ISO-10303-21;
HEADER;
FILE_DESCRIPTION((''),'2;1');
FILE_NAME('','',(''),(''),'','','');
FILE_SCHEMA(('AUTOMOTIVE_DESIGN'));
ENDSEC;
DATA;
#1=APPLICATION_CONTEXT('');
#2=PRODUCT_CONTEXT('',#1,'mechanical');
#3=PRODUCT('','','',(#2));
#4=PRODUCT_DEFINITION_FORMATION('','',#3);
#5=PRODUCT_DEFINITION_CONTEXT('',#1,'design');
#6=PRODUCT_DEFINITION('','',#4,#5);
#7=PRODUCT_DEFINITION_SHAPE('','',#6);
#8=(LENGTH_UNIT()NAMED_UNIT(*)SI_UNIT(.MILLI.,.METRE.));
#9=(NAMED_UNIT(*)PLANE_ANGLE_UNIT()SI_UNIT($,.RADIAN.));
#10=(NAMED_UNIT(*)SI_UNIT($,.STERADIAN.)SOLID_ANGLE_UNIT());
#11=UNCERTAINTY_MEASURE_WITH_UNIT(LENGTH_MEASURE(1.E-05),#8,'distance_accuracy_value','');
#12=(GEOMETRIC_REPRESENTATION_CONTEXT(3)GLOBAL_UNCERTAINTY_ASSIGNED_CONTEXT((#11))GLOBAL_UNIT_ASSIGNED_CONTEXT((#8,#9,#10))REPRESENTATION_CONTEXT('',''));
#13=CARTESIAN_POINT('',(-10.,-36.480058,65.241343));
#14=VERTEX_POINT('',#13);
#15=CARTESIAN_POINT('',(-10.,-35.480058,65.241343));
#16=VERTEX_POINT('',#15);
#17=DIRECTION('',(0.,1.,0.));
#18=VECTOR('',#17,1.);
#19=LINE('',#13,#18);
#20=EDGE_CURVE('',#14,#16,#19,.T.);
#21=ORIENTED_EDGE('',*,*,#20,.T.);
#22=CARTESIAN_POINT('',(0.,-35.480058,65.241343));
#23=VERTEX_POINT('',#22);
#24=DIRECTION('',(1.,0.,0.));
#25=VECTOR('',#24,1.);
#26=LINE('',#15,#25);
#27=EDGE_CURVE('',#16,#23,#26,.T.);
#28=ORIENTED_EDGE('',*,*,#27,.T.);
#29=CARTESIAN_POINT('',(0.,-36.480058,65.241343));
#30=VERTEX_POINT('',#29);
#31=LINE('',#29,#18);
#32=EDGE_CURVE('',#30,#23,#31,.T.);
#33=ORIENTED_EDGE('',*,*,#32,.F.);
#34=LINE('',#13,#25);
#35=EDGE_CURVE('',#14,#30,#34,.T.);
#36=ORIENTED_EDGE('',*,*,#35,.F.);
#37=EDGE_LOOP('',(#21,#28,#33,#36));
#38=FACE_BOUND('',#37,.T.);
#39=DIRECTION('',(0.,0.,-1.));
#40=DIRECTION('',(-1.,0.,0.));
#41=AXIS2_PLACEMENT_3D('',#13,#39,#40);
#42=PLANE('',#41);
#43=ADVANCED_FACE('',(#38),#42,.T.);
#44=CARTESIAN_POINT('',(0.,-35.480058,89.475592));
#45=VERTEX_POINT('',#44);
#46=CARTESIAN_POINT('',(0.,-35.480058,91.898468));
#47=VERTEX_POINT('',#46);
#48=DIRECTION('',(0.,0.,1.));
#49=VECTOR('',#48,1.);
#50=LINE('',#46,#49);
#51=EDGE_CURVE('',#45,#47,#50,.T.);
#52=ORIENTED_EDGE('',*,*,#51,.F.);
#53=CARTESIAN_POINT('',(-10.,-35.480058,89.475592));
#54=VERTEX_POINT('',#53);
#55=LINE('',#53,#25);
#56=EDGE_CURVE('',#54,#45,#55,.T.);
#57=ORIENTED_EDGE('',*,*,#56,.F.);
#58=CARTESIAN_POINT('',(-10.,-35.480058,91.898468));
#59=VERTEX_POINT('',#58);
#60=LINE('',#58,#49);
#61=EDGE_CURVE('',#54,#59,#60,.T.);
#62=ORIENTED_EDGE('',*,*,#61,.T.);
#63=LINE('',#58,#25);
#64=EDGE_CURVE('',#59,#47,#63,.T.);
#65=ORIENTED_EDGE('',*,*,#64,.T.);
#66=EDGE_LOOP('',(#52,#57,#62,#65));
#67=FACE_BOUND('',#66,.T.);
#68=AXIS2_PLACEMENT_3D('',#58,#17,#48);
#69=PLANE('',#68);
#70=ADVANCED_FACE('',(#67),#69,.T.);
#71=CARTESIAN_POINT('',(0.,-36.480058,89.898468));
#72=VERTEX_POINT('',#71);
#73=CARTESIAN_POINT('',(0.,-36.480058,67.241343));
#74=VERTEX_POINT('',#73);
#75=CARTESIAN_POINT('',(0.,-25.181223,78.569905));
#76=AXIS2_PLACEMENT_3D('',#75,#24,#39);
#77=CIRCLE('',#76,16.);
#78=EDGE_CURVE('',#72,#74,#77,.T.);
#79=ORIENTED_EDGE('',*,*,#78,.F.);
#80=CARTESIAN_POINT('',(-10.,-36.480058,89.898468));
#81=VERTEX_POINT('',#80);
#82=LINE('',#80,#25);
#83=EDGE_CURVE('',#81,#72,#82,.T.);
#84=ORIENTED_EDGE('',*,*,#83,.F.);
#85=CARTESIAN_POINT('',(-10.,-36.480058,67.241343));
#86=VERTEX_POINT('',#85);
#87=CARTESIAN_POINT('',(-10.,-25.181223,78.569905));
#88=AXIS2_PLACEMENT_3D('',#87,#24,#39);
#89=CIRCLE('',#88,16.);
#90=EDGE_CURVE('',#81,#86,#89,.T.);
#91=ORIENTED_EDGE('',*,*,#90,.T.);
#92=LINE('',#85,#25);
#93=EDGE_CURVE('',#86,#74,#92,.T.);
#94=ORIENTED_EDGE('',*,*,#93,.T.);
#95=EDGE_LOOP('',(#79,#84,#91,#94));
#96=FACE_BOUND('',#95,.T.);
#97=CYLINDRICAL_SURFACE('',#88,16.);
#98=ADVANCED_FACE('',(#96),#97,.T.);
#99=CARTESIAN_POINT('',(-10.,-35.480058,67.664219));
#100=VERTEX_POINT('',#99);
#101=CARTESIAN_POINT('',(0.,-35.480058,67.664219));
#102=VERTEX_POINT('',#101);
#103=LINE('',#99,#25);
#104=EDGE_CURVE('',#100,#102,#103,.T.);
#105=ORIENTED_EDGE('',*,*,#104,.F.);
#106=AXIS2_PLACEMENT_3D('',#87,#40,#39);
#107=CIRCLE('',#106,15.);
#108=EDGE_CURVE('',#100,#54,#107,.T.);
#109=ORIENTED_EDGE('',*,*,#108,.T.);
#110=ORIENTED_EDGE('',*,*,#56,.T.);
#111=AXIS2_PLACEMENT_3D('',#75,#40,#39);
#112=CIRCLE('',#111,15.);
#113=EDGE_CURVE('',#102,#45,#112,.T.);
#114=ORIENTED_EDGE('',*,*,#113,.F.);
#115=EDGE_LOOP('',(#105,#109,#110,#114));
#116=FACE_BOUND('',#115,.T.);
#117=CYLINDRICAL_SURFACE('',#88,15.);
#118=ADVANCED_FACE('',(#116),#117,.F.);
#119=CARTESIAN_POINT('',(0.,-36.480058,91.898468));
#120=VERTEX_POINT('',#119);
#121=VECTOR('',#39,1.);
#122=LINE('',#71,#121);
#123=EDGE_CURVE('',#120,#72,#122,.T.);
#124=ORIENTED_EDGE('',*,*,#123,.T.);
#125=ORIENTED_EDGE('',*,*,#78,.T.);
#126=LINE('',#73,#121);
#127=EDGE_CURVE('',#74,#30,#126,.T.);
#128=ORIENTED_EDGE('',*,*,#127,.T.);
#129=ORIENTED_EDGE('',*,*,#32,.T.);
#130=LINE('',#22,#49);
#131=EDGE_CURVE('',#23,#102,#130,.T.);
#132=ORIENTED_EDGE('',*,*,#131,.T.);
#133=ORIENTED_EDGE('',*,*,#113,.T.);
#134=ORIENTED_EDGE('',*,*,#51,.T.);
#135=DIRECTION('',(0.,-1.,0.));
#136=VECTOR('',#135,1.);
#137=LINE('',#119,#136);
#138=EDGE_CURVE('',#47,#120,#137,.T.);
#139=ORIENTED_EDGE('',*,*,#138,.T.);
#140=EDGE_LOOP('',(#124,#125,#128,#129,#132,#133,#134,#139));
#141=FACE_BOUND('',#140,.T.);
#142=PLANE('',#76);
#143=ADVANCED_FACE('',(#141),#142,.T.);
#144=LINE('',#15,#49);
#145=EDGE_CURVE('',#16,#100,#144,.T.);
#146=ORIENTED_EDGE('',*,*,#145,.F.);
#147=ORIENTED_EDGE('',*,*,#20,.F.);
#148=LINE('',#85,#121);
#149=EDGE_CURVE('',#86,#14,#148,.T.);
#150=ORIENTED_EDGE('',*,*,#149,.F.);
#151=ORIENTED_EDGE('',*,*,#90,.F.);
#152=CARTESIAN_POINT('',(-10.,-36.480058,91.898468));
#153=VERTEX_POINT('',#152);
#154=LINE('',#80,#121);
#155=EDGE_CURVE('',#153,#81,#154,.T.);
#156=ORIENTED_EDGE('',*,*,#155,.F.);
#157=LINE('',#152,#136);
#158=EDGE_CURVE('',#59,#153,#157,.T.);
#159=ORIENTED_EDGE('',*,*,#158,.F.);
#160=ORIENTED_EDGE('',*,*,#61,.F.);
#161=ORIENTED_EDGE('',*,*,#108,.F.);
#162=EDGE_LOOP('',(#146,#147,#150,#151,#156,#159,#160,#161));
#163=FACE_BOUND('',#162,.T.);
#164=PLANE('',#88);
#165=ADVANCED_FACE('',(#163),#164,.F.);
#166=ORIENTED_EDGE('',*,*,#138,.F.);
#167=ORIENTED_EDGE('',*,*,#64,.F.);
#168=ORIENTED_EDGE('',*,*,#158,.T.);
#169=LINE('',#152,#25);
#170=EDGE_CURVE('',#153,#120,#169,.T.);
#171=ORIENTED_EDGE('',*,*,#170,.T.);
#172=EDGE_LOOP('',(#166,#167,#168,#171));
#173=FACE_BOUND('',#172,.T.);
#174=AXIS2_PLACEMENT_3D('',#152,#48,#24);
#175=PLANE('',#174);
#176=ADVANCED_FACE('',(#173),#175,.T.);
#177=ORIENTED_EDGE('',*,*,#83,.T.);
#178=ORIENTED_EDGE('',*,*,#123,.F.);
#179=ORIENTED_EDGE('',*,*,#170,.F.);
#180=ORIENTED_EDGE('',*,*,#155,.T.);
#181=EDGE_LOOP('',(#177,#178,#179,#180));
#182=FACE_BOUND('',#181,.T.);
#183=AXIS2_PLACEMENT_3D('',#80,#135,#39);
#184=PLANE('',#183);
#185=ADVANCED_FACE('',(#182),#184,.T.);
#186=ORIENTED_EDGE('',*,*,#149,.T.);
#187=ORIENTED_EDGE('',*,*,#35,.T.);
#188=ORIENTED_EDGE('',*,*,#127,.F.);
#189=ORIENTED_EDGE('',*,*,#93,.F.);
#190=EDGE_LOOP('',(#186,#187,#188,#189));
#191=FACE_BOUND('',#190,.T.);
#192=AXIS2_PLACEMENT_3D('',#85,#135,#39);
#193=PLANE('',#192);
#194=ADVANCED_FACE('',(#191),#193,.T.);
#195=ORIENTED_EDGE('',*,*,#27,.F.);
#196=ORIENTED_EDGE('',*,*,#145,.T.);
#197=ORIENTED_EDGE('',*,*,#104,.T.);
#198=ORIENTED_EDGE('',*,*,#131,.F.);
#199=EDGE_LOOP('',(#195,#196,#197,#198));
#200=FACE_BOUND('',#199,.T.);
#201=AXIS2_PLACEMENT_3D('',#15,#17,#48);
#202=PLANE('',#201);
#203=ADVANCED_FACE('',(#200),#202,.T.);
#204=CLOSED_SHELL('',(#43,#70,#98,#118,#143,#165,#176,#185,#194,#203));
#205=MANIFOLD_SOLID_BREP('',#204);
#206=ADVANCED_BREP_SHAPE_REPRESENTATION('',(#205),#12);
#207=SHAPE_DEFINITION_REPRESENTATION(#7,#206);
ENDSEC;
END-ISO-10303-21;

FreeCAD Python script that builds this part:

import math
import FreeCAD as App
import Part
import Sketcher
from FreeCAD import Vector

doc = App.newDocument("Part")
body = doc.addObject("PartDesign::Body", "Body")

# Sketch on YZ plane
sketch1 = body.newObject("Sketcher::SketchObject", "Sketch")
sketch1.AttachmentSupport = (doc.getObject("YZ_Plane"), [""])
sketch1.MapMode = "FlatFace"
sketch1.addGeometry(Part.LineSegment(Vector(-36.5, 91.9, 0), Vector(-36.5, 89.9, 0)), False)
sketch1.addGeometry(Part.ArcOfCircle(Part.Circle(Vector(-25.2, 78.6, 0), Vector(0, 0, 1), 16), math.radians(135), math.radians(225)), False)
sketch1.addGeometry(Part.LineSegment(Vector(-36.5, 67.2, 0), Vector(-36.5, 65.2, 0)), False)
sketch1.addGeometry(Part.LineSegment(Vector(-36.5, 65.2, 0), Vector(-35.5, 65.2, 0)), False)
sketch1.addGeometry(Part.LineSegment(Vector(-35.5, 65.2, 0), Vector(-35.5, 67.7, 0)), False)
sketch1.addGeometry(Part.ArcOfCircle(Part.Circle(Vector(-25.2, 78.6, 0), Vector(0, 0, 1), 15), math.radians(133), math.radians(227)), False)
sketch1.addGeometry(Part.LineSegment(Vector(-35.5, 89.5, 0), Vector(-35.5, 91.9, 0)), False)
sketch1.addGeometry(Part.LineSegment(Vector(-35.5, 91.9, 0), Vector(-36.5, 91.9, 0)), False)
sketch1.addConstraint(Sketcher.Constraint("Coincident", 0, 2, 1, 1))
sketch1.addConstraint(Sketcher.Constraint("Coincident", 1, 2, 2, 1))
sketch1.addConstraint(Sketcher.Constraint("Coincident", 2, 2, 3, 1))
sketch1.addConstraint(Sketcher.Constraint("Coincident", 3, 2, 4, 1))
sketch1.addConstraint(Sketcher.Constraint("Coincident", 4, 2, 5, 2))
sketch1.addConstraint(Sketcher.Constraint("Coincident", 5, 1, 6, 1))
sketch1.addConstraint(Sketcher.Constraint("Coincident", 6, 2, 7, 1))
sketch1.addConstraint(Sketcher.Constraint("Coincident", 7, 2, 0, 1))
sketch1.addConstraint(Sketcher.Constraint("Vertical", 0))
sketch1.addConstraint(Sketcher.Constraint("Vertical", 2))
sketch1.addConstraint(Sketcher.Constraint("Horizontal", 3))
sketch1.addConstraint(Sketcher.Constraint("Vertical", 4))
sketch1.addConstraint(Sketcher.Constraint("Vertical", 6))
sketch1.addConstraint(Sketcher.Constraint("Horizontal", 7))
sketch1.addConstraint(Sketcher.Constraint("Coincident", 5, 3, 1, 3))
sketch1.addConstraint(Sketcher.Constraint("Vertical", 0, 2, 1, 2))
sketch1.addConstraint(Sketcher.Constraint("Vertical", 4, 2, 5, 1))
sketch1.addConstraint(Sketcher.Constraint("Equal", 0, 2))
sketch1.addConstraint(Sketcher.Constraint("Radius", 1, 16.0))
sketch1.addConstraint(Sketcher.Constraint("Radius", 5, 15.0))
sketch1.addConstraint(Sketcher.Constraint("DistanceX", 3, 1, 3, 2, 1.0))
sketch1.addConstraint(Sketcher.Constraint("DistanceY", 0, 2, 0, 1, 2.0))
sketch1.addConstraint(Sketcher.Constraint("DistanceY", 4, 1, 4, 2, 2.422876))
sketch1.addConstraint(Sketcher.Constraint("DistanceY", -1, 1, 0, 2, 89.898468))
sketch1.addConstraint(Sketcher.Constraint("DistanceX", 1, 3, -1, 1, 25.181223))
pad1 = body.newObject("PartDesign::Pad", "Pad")
pad1.Profile = sketch1
pad1.Length = 10
pad1.Reversed = True

doc.recompute()
